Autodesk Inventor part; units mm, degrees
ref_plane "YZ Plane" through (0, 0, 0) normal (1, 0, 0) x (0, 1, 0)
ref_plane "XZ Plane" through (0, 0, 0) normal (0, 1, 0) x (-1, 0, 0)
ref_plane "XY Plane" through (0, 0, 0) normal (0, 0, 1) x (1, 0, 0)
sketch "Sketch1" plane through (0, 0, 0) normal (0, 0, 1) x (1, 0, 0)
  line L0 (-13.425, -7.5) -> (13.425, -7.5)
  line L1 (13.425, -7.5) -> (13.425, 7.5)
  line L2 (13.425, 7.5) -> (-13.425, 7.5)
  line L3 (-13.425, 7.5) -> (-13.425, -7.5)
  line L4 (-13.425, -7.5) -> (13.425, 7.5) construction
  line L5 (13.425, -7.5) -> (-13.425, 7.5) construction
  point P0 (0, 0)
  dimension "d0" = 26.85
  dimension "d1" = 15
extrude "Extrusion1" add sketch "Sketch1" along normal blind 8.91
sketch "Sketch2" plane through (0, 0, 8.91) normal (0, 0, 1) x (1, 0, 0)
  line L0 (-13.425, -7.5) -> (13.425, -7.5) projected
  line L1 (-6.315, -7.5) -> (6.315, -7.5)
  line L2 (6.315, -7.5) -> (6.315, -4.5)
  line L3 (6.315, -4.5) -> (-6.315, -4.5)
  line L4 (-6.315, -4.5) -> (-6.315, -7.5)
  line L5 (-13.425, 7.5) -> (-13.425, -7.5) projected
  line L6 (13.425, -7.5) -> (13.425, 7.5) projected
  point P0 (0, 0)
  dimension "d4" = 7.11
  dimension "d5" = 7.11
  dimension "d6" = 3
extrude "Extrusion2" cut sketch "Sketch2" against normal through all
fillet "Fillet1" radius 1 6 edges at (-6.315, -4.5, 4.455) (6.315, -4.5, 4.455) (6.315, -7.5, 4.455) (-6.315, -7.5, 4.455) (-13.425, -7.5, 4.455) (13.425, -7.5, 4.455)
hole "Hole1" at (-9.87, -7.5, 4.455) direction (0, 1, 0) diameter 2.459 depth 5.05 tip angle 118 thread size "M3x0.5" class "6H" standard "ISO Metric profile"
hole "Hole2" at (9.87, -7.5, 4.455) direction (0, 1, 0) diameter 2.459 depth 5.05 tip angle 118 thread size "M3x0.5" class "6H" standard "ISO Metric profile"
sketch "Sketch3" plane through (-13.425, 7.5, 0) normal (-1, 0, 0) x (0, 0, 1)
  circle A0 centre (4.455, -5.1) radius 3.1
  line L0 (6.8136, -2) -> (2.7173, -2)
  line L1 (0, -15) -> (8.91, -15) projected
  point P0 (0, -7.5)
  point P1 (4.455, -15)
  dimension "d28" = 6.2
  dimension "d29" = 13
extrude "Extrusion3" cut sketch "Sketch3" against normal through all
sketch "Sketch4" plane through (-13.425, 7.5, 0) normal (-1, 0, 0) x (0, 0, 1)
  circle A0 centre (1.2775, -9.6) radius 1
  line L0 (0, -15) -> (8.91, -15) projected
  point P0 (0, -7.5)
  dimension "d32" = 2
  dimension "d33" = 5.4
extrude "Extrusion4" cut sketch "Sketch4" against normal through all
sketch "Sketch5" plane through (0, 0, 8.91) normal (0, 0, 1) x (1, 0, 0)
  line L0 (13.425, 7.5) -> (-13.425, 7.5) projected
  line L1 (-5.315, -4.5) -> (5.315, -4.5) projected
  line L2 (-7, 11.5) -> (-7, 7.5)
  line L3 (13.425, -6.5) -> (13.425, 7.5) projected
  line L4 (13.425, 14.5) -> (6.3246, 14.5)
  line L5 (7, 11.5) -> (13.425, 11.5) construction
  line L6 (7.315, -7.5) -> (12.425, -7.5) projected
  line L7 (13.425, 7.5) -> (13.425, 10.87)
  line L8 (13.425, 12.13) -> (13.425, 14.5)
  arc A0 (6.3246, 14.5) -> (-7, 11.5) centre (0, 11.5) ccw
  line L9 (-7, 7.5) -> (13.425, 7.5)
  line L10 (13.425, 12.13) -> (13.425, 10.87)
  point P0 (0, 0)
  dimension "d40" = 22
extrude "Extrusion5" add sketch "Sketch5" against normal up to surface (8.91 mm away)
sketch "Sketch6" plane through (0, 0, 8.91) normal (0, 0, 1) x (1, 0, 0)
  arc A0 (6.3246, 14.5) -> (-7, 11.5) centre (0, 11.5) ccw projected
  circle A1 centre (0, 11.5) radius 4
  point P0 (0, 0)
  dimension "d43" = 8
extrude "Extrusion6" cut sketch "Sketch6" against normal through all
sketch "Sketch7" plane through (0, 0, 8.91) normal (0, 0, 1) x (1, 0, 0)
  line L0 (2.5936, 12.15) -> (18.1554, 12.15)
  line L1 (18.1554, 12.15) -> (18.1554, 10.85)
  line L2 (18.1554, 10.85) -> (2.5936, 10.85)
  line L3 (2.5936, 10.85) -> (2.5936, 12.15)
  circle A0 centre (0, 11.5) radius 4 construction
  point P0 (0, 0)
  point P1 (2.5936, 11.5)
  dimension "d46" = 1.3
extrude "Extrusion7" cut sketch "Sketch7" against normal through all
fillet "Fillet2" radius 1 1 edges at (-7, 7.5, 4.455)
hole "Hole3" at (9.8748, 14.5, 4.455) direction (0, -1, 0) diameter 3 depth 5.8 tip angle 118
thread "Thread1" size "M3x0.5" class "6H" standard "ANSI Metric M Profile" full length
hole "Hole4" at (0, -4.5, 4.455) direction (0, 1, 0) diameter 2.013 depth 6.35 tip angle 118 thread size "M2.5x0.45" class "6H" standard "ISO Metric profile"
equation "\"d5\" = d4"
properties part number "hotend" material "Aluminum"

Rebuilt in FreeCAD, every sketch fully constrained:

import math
import FreeCAD as App
import Part
import Sketcher
from FreeCAD import Vector
Q = App.Units.Quantity


def edges_at(feature, points):
    """Names of the edges that pass closest to the given points."""
    edges = feature.Shape.Edges
    near = lambda p: min(range(len(edges)), key=lambda i: edges[i].distToShape(Part.Vertex(*p))[0])
    return sorted({f"Edge{near(p) + 1}" for p in points})

doc = App.newDocument("Part")
body = doc.addObject("PartDesign::Body", "Body")

# Sketch on XY plane
sketch1 = body.newObject("Sketcher::SketchObject", "Sketch")
sketch1.AttachmentSupport = (doc.getObject("XY_Plane"), [""])
sketch1.MapMode = "FlatFace"
sketch1.addGeometry(Part.LineSegment(Vector(-13, 8, 0), Vector(-13, -8, 0)), False)
sketch1.addGeometry(Part.LineSegment(Vector(-13, -8, 0), Vector(13, -8, 0)), False)
sketch1.addGeometry(Part.LineSegment(Vector(13, -8, 0), Vector(13, 8, 0)), False)
sketch1.addGeometry(Part.LineSegment(Vector(13, 8, 0), Vector(-13, 8, 0)), False)
sketch1.addConstraint(Sketcher.Constraint("Coincident", 0, 2, 1, 1))
sketch1.addConstraint(Sketcher.Constraint("Coincident", 1, 2, 2, 1))
sketch1.addConstraint(Sketcher.Constraint("Coincident", 2, 2, 3, 1))
sketch1.addConstraint(Sketcher.Constraint("Coincident", 3, 2, 0, 1))
sketch1.addConstraint(Sketcher.Constraint("Vertical", 0))
sketch1.addConstraint(Sketcher.Constraint("Horizontal", 1))
sketch1.addConstraint(Sketcher.Constraint("Vertical", 2))
sketch1.addConstraint(Sketcher.Constraint("Horizontal", 3))
sketch1.addConstraint(Sketcher.Constraint("Symmetric", 0, 2, 2, 2, -1, 1))
sketch1.addConstraint(Sketcher.Constraint("DistanceY", 0, 2, 0, 1, Q("15 mm")))
sketch1.addConstraint(Sketcher.Constraint("DistanceX", 1, 1, 1, 2, Q("26.85 mm")))
pad1 = body.newObject("PartDesign::Pad", "Pad")
pad1.Profile = sketch1
pad1.Length = 8.91

# Sketch on XY plane
sketch2 = body.newObject("Sketcher::SketchObject", "Sketch001")
sketch2.AttachmentSupport = (doc.getObject("XY_Plane"), [""])
sketch2.MapMode = "FlatFace"
sketch2.AttachmentOffset = App.Placement(Vector(0, 0, 8.91), App.Rotation())
sketch2.addGeometry(Part.LineSegment(Vector(-6.3, -4.5, 0), Vector(-6.3, -7.5, 0)), False)
sketch2.addGeometry(Part.LineSegment(Vector(-6.3, -7.5, 0), Vector(6.3, -7.5, 0)), False)
sketch2.addGeometry(Part.LineSegment(Vector(6.3, -7.5, 0), Vector(6.3, -4.5, 0)), False)
sketch2.addGeometry(Part.LineSegment(Vector(6.3, -4.5, 0), Vector(-6.3, -4.5, 0)), False)
sketch2.addConstraint(Sketcher.Constraint("Coincident", 0, 2, 1, 1))
sketch2.addConstraint(Sketcher.Constraint("Coincident", 1, 2, 2, 1))
sketch2.addConstraint(Sketcher.Constraint("Coincident", 2, 2, 3, 1))
sketch2.addConstraint(Sketcher.Constraint("Coincident", 3, 2, 0, 1))
sketch2.addConstraint(Sketcher.Constraint("Vertical", 0))
sketch2.addConstraint(Sketcher.Constraint("Horizontal", 1))
sketch2.addConstraint(Sketcher.Constraint("Vertical", 2))
sketch2.addConstraint(Sketcher.Constraint("Horizontal", 3))
sketch2.addConstraint(Sketcher.Constraint("DistanceY", 0, 2, 0, 1, Q("3 mm")))
sketch2.addConstraint(Sketcher.Constraint("DistanceX", 1, 1, 1, 2, Q("12.63 mm")))
sketch2.addConstraint(Sketcher.Constraint("DistanceY", 0, 2, -1, 1, Q("7.5 mm")))
sketch2.addConstraint(Sketcher.Constraint("DistanceX", 0, 2, -1, 1, Q("6.315 mm")))
pocket1 = body.newObject("PartDesign::Pocket", "Pocket")
pocket1.Profile = sketch2
pocket1.Type = "ThroughAll"
doc.recompute()

fillet = body.newObject("PartDesign::Fillet", "Fillet")
fillet.Base = (pocket1, edges_at(pocket1, [
    (-6.315, -4.5, 4.455),
    (6.315, -4.5, 4.455),
    (6.315, -7.5, 4.455),
    (-6.315, -7.5, 4.455),
    (-13.425, -7.5, 4.455),
    (13.425, -7.5, 4.455),
]))
fillet.Radius = 1

# Sketch on XZ plane
sketch3 = body.newObject("Sketcher::SketchObject", "Sketch002")
sketch3.AttachmentSupport = (doc.getObject("XZ_Plane"), [""])
sketch3.MapMode = "FlatFace"
sketch3.AttachmentOffset = App.Placement(Vector(0, 0, 7.5), App.Rotation())
sketch3.addGeometry(Part.Circle(Vector(-9.9, 4.5, 0), Vector(0, 0, 1), 1.2), False)
sketch3.addConstraint(Sketcher.Constraint("Diameter", 0, Q("2.459 mm")))
sketch3.addConstraint(Sketcher.Constraint("DistanceX", 0, 3, -1, 1, Q("9.87 mm")))
sketch3.addConstraint(Sketcher.Constraint("DistanceY", -1, 1, 0, 3, Q("4.455 mm")))
doc.recompute()
hole = body.newObject("PartDesign::Hole", "Hole")
hole.Profile = sketch3
hole.ThreadType = "None"
hole.Diameter = 2.459
hole.DepthType = "Dimension"
hole.Depth = 5.05
hole.DrillPoint = "Angled"
hole.DrillPointAngle = 118

# Sketch on XZ plane
sketch4 = body.newObject("Sketcher::SketchObject", "Sketch003")
sketch4.AttachmentSupport = (doc.getObject("XZ_Plane"), [""])
sketch4.MapMode = "FlatFace"
sketch4.AttachmentOffset = App.Placement(Vector(0, 0, 7.5), App.Rotation())
sketch4.addGeometry(Part.Circle(Vector(9.9, 4.5, 0), Vector(0, 0, 1), 1.2), False)
sketch4.addConstraint(Sketcher.Constraint("Diameter", 0, Q("2.459 mm")))
sketch4.addConstraint(Sketcher.Constraint("DistanceX", -1, 1, 0, 3, Q("9.87 mm")))
sketch4.addConstraint(Sketcher.Constraint("DistanceY", -1, 1, 0, 3, Q("4.455 mm")))
doc.recompute()
hole2 = body.newObject("PartDesign::Hole", "Hole001")
hole2.Profile = sketch4
hole2.ThreadType = "None"
hole2.Diameter = 2.459
hole2.DepthType = "Dimension"
hole2.Depth = 5.05
hole2.DrillPoint = "Angled"
hole2.DrillPointAngle = 118

# Sketch on YZ plane
sketch5 = body.newObject("Sketcher::SketchObject", "Sketch004")
sketch5.AttachmentSupport = (doc.getObject("YZ_Plane"), [""])
sketch5.MapMode = "FlatFace"
sketch5.AttachmentOffset = App.Placement(Vector(0, 0, -13.425), App.Rotation())
sketch5.addGeometry(Part.Circle(Vector(2.4, 4.5, 0), Vector(0, 0, 1), 3.1), False)
sketch5.addConstraint(Sketcher.Constraint("Diameter", 0, Q("6.2 mm")))
sketch5.addConstraint(Sketcher.Constraint("DistanceX", -1, 1, 0, 3, Q("2.4 mm")))
sketch5.addConstraint(Sketcher.Constraint("DistanceY", -1, 1, 0, 3, Q("4.455 mm")))
pocket2 = body.newObject("PartDesign::Pocket", "Pocket001")
pocket2.Profile = sketch5
pocket2.Type = "ThroughAll"
pocket2.Reversed = True

# Sketch on YZ plane
sketch6 = body.newObject("Sketcher::SketchObject", "Sketch005")
sketch6.AttachmentSupport = (doc.getObject("YZ_Plane"), [""])
sketch6.MapMode = "FlatFace"
sketch6.AttachmentOffset = App.Placement(Vector(0, 0, -13.425), App.Rotation())
sketch6.addGeometry(Part.Circle(Vector(-2.1, 1.3, 0), Vector(0, 0, 1), 1), False)
sketch6.addConstraint(Sketcher.Constraint("Diameter", 0, Q("2 mm")))
sketch6.addConstraint(Sketcher.Constraint("DistanceX", 0, 3, -1, 1, Q("2.1 mm")))
sketch6.addConstraint(Sketcher.Constraint("DistanceY", -1, 1, 0, 3, Q("1.2775 mm")))
pocket3 = body.newObject("PartDesign::Pocket", "Pocket002")
pocket3.Profile = sketch6
pocket3.Type = "ThroughAll"
pocket3.Reversed = True

# Sketch on XY plane
sketch7 = body.newObject("Sketcher::SketchObject", "Sketch006")
sketch7.AttachmentSupport = (doc.getObject("XY_Plane"), [""])
sketch7.MapMode = "FlatFace"
sketch7.AttachmentOffset = App.Placement(Vector(0, 0, 8.91), App.Rotation())
sketch7.addGeometry(Part.LineSegment(Vector(-7, 7.5, 0), Vector(13.4, 7.5, 0)), False)
sketch7.addGeometry(Part.LineSegment(Vector(13.4, 7.5, 0), Vector(13.4, 14.5, 0)), False)
sketch7.addGeometry(Part.LineSegment(Vector(13.4, 14.5, 0), Vector(6.3, 14.5, 0)), False)
sketch7.addGeometry(Part.ArcOfCircle(Part.Circle(Vector(0, 11.5, 0), Vector(0, 0, 1), 7), math.radians(25), math.radians(180)), False)
sketch7.addGeometry(Part.LineSegment(Vector(-7, 11.5, 0), Vector(-7, 7.5, 0)), False)
sketch7.addConstraint(Sketcher.Constraint("Coincident", 0, 2, 1, 1))
sketch7.addConstraint(Sketcher.Constraint("Coincident", 1, 2, 2, 1))
sketch7.addConstraint(Sketcher.Constraint("Coincident", 2, 2, 3, 1))
sketch7.addConstraint(Sketcher.Constraint("Tangent", 3, 2, 4, 1))
sketch7.addConstraint(Sketcher.Constraint("Coincident", 4, 2, 0, 1))
sketch7.addConstraint(Sketcher.Constraint("Horizontal", 0))
sketch7.addConstraint(Sketcher.Constraint("Vertical", 1))
sketch7.addConstraint(Sketcher.Constraint("Horizontal", 2))
sketch7.addConstraint(Sketcher.Constraint("Vertical", 4))
sketch7.addConstraint(Sketcher.Constraint("PointOnObject", 3, 3, -2))
sketch7.addConstraint(Sketcher.Constraint("Radius", 3, Q("7 mm")))
sketch7.addConstraint(Sketcher.Constraint("DistanceY", 1, 1, 1, 2, Q("7 mm")))
sketch7.addConstraint(Sketcher.Constraint("DistanceY", 4, 2, 4, 1, Q("4 mm")))
sketch7.addConstraint(Sketcher.Constraint("DistanceY", -1, 1, 3, 3, Q("11.5 mm")))
sketch7.addConstraint(Sketcher.Constraint("DistanceX", 0, 1, 0, 2, Q("20.425 mm")))
pad2 = body.newObject("PartDesign::Pad", "Pad001")
pad2.Profile = sketch7
pad2.Length = 8.91
pad2.Reversed = True

# Sketch on XY plane
sketch8 = body.newObject("Sketcher::SketchObject", "Sketch007")
sketch8.AttachmentSupport = (doc.getObject("XY_Plane"), [""])
sketch8.MapMode = "FlatFace"
sketch8.AttachmentOffset = App.Placement(Vector(0, 0, 8.91), App.Rotation())
sketch8.addGeometry(Part.Circle(Vector(0, 11.5, 0), Vector(0, 0, 1), 4), False)
sketch8.addConstraint(Sketcher.Constraint("PointOnObject", 0, 3, -2))
sketch8.addConstraint(Sketcher.Constraint("Diameter", 0, Q("8 mm")))
sketch8.addConstraint(Sketcher.Constraint("DistanceY", -1, 1, 0, 3, Q("11.5 mm")))
pocket4 = body.newObject("PartDesign::Pocket", "Pocket003")
pocket4.Profile = sketch8
pocket4.Type = "ThroughAll"

# Sketch on XY plane
sketch9 = body.newObject("Sketcher::SketchObject", "Sketch008")
sketch9.AttachmentSupport = (doc.getObject("XY_Plane"), [""])
sketch9.MapMode = "FlatFace"
sketch9.AttachmentOffset = App.Placement(Vector(0, 0, 8.91), App.Rotation())
sketch9.addGeometry(Part.LineSegment(Vector(18.2, 12.2, 0), Vector(2.6, 12.2, 0)), False)
sketch9.addGeometry(Part.LineSegment(Vector(2.6, 12.2, 0), Vector(2.6, 10.8, 0)), False)
sketch9.addGeometry(Part.LineSegment(Vector(2.6, 10.8, 0), Vector(18.2, 10.8, 0)), False)
sketch9.addGeometry(Part.LineSegment(Vector(18.2, 10.8, 0), Vector(18.2, 12.2, 0)), False)
sketch9.addConstraint(Sketcher.Constraint("Coincident", 0, 2, 1, 1))
sketch9.addConstraint(Sketcher.Constraint("Coincident", 1, 2, 2, 1))
sketch9.addConstraint(Sketcher.Constraint("Coincident", 2, 2, 3, 1))
sketch9.addConstraint(Sketcher.Constraint("Coincident", 3, 2, 0, 1))
sketch9.addConstraint(Sketcher.Constraint("Horizontal", 0))
sketch9.addConstraint(Sketcher.Constraint("Vertical", 1))
sketch9.addConstraint(Sketcher.Constraint("Horizontal", 2))
sketch9.addConstraint(Sketcher.Constraint("Vertical", 3))
sketch9.addConstraint(Sketcher.Constraint("DistanceY", 1, 2, 1, 1, Q("1.3 mm")))
sketch9.addConstraint(Sketcher.Constraint("DistanceY", -1, 1, 0, 2, Q("12.15 mm")))
sketch9.addConstraint(Sketcher.Constraint("DistanceX", 0, 2, 0, 1, Q("15.5618 mm")))
sketch9.addConstraint(Sketcher.Constraint("DistanceX", -1, 1, 0, 2, Q("2.5936 mm")))
pocket5 = body.newObject("PartDesign::Pocket", "Pocket004")
pocket5.Profile = sketch9
pocket5.Type = "ThroughAll"
doc.recompute()

fillet2 = body.newObject("PartDesign::Fillet", "Fillet001")
fillet2.Base = (pocket5, edges_at(pocket5, [(-7, 7.5, 4.455)]))
fillet2.Radius = 1

# Sketch on XZ plane
sketch10 = body.newObject("Sketcher::SketchObject", "Sketch009")
sketch10.AttachmentSupport = (doc.getObject("XZ_Plane"), [""])
sketch10.MapMode = "FlatFace"
sketch10.AttachmentOffset = App.Placement(Vector(0, 0, -14.5), App.Rotation())
sketch10.addGeometry(Part.Circle(Vector(9.9, 4.5, 0), Vector(0, 0, 1), 1.5), False)
sketch10.addConstraint(Sketcher.Constraint("Diameter", 0, Q("3 mm")))
sketch10.addConstraint(Sketcher.Constraint("DistanceY", -1, 1, 0, 3, Q("4.455 mm")))
sketch10.addConstraint(Sketcher.Constraint("DistanceX", -1, 1, 0, 3, Q("9.8748 mm")))
doc.recompute()
hole3 = body.newObject("PartDesign::Hole", "Hole002")
hole3.Profile = sketch10
hole3.ThreadType = "None"
hole3.Diameter = 3
hole3.DepthType = "Dimension"
hole3.Depth = 5.8
hole3.DrillPoint = "Angled"
hole3.DrillPointAngle = 118
hole3.Reversed = True

# Sketch on XZ plane
sketch11 = body.newObject("Sketcher::SketchObject", "Sketch010")
sketch11.AttachmentSupport = (doc.getObject("XZ_Plane"), [""])
sketch11.MapMode = "FlatFace"
sketch11.AttachmentOffset = App.Placement(Vector(0, 0, 4.5), App.Rotation())
sketch11.addGeometry(Part.Circle(Vector(0, 4.5, 0), Vector(0, 0, 1), 1), False)
sketch11.addConstraint(Sketcher.Constraint("PointOnObject", 0, 3, -2))
sketch11.addConstraint(Sketcher.Constraint("Diameter", 0, Q("2.013 mm")))
sketch11.addConstraint(Sketcher.Constraint("DistanceY", -1, 1, 0, 3, Q("4.455 mm")))
doc.recompute()
hole4 = body.newObject("PartDesign::Hole", "Hole003")
hole4.Profile = sketch11
hole4.ThreadType = "None"
hole4.Diameter = 2.013
hole4.DepthType = "Dimension"
hole4.Depth = 6.35
hole4.DrillPoint = "Angled"
hole4.DrillPointAngle = 118

doc.recompute()
